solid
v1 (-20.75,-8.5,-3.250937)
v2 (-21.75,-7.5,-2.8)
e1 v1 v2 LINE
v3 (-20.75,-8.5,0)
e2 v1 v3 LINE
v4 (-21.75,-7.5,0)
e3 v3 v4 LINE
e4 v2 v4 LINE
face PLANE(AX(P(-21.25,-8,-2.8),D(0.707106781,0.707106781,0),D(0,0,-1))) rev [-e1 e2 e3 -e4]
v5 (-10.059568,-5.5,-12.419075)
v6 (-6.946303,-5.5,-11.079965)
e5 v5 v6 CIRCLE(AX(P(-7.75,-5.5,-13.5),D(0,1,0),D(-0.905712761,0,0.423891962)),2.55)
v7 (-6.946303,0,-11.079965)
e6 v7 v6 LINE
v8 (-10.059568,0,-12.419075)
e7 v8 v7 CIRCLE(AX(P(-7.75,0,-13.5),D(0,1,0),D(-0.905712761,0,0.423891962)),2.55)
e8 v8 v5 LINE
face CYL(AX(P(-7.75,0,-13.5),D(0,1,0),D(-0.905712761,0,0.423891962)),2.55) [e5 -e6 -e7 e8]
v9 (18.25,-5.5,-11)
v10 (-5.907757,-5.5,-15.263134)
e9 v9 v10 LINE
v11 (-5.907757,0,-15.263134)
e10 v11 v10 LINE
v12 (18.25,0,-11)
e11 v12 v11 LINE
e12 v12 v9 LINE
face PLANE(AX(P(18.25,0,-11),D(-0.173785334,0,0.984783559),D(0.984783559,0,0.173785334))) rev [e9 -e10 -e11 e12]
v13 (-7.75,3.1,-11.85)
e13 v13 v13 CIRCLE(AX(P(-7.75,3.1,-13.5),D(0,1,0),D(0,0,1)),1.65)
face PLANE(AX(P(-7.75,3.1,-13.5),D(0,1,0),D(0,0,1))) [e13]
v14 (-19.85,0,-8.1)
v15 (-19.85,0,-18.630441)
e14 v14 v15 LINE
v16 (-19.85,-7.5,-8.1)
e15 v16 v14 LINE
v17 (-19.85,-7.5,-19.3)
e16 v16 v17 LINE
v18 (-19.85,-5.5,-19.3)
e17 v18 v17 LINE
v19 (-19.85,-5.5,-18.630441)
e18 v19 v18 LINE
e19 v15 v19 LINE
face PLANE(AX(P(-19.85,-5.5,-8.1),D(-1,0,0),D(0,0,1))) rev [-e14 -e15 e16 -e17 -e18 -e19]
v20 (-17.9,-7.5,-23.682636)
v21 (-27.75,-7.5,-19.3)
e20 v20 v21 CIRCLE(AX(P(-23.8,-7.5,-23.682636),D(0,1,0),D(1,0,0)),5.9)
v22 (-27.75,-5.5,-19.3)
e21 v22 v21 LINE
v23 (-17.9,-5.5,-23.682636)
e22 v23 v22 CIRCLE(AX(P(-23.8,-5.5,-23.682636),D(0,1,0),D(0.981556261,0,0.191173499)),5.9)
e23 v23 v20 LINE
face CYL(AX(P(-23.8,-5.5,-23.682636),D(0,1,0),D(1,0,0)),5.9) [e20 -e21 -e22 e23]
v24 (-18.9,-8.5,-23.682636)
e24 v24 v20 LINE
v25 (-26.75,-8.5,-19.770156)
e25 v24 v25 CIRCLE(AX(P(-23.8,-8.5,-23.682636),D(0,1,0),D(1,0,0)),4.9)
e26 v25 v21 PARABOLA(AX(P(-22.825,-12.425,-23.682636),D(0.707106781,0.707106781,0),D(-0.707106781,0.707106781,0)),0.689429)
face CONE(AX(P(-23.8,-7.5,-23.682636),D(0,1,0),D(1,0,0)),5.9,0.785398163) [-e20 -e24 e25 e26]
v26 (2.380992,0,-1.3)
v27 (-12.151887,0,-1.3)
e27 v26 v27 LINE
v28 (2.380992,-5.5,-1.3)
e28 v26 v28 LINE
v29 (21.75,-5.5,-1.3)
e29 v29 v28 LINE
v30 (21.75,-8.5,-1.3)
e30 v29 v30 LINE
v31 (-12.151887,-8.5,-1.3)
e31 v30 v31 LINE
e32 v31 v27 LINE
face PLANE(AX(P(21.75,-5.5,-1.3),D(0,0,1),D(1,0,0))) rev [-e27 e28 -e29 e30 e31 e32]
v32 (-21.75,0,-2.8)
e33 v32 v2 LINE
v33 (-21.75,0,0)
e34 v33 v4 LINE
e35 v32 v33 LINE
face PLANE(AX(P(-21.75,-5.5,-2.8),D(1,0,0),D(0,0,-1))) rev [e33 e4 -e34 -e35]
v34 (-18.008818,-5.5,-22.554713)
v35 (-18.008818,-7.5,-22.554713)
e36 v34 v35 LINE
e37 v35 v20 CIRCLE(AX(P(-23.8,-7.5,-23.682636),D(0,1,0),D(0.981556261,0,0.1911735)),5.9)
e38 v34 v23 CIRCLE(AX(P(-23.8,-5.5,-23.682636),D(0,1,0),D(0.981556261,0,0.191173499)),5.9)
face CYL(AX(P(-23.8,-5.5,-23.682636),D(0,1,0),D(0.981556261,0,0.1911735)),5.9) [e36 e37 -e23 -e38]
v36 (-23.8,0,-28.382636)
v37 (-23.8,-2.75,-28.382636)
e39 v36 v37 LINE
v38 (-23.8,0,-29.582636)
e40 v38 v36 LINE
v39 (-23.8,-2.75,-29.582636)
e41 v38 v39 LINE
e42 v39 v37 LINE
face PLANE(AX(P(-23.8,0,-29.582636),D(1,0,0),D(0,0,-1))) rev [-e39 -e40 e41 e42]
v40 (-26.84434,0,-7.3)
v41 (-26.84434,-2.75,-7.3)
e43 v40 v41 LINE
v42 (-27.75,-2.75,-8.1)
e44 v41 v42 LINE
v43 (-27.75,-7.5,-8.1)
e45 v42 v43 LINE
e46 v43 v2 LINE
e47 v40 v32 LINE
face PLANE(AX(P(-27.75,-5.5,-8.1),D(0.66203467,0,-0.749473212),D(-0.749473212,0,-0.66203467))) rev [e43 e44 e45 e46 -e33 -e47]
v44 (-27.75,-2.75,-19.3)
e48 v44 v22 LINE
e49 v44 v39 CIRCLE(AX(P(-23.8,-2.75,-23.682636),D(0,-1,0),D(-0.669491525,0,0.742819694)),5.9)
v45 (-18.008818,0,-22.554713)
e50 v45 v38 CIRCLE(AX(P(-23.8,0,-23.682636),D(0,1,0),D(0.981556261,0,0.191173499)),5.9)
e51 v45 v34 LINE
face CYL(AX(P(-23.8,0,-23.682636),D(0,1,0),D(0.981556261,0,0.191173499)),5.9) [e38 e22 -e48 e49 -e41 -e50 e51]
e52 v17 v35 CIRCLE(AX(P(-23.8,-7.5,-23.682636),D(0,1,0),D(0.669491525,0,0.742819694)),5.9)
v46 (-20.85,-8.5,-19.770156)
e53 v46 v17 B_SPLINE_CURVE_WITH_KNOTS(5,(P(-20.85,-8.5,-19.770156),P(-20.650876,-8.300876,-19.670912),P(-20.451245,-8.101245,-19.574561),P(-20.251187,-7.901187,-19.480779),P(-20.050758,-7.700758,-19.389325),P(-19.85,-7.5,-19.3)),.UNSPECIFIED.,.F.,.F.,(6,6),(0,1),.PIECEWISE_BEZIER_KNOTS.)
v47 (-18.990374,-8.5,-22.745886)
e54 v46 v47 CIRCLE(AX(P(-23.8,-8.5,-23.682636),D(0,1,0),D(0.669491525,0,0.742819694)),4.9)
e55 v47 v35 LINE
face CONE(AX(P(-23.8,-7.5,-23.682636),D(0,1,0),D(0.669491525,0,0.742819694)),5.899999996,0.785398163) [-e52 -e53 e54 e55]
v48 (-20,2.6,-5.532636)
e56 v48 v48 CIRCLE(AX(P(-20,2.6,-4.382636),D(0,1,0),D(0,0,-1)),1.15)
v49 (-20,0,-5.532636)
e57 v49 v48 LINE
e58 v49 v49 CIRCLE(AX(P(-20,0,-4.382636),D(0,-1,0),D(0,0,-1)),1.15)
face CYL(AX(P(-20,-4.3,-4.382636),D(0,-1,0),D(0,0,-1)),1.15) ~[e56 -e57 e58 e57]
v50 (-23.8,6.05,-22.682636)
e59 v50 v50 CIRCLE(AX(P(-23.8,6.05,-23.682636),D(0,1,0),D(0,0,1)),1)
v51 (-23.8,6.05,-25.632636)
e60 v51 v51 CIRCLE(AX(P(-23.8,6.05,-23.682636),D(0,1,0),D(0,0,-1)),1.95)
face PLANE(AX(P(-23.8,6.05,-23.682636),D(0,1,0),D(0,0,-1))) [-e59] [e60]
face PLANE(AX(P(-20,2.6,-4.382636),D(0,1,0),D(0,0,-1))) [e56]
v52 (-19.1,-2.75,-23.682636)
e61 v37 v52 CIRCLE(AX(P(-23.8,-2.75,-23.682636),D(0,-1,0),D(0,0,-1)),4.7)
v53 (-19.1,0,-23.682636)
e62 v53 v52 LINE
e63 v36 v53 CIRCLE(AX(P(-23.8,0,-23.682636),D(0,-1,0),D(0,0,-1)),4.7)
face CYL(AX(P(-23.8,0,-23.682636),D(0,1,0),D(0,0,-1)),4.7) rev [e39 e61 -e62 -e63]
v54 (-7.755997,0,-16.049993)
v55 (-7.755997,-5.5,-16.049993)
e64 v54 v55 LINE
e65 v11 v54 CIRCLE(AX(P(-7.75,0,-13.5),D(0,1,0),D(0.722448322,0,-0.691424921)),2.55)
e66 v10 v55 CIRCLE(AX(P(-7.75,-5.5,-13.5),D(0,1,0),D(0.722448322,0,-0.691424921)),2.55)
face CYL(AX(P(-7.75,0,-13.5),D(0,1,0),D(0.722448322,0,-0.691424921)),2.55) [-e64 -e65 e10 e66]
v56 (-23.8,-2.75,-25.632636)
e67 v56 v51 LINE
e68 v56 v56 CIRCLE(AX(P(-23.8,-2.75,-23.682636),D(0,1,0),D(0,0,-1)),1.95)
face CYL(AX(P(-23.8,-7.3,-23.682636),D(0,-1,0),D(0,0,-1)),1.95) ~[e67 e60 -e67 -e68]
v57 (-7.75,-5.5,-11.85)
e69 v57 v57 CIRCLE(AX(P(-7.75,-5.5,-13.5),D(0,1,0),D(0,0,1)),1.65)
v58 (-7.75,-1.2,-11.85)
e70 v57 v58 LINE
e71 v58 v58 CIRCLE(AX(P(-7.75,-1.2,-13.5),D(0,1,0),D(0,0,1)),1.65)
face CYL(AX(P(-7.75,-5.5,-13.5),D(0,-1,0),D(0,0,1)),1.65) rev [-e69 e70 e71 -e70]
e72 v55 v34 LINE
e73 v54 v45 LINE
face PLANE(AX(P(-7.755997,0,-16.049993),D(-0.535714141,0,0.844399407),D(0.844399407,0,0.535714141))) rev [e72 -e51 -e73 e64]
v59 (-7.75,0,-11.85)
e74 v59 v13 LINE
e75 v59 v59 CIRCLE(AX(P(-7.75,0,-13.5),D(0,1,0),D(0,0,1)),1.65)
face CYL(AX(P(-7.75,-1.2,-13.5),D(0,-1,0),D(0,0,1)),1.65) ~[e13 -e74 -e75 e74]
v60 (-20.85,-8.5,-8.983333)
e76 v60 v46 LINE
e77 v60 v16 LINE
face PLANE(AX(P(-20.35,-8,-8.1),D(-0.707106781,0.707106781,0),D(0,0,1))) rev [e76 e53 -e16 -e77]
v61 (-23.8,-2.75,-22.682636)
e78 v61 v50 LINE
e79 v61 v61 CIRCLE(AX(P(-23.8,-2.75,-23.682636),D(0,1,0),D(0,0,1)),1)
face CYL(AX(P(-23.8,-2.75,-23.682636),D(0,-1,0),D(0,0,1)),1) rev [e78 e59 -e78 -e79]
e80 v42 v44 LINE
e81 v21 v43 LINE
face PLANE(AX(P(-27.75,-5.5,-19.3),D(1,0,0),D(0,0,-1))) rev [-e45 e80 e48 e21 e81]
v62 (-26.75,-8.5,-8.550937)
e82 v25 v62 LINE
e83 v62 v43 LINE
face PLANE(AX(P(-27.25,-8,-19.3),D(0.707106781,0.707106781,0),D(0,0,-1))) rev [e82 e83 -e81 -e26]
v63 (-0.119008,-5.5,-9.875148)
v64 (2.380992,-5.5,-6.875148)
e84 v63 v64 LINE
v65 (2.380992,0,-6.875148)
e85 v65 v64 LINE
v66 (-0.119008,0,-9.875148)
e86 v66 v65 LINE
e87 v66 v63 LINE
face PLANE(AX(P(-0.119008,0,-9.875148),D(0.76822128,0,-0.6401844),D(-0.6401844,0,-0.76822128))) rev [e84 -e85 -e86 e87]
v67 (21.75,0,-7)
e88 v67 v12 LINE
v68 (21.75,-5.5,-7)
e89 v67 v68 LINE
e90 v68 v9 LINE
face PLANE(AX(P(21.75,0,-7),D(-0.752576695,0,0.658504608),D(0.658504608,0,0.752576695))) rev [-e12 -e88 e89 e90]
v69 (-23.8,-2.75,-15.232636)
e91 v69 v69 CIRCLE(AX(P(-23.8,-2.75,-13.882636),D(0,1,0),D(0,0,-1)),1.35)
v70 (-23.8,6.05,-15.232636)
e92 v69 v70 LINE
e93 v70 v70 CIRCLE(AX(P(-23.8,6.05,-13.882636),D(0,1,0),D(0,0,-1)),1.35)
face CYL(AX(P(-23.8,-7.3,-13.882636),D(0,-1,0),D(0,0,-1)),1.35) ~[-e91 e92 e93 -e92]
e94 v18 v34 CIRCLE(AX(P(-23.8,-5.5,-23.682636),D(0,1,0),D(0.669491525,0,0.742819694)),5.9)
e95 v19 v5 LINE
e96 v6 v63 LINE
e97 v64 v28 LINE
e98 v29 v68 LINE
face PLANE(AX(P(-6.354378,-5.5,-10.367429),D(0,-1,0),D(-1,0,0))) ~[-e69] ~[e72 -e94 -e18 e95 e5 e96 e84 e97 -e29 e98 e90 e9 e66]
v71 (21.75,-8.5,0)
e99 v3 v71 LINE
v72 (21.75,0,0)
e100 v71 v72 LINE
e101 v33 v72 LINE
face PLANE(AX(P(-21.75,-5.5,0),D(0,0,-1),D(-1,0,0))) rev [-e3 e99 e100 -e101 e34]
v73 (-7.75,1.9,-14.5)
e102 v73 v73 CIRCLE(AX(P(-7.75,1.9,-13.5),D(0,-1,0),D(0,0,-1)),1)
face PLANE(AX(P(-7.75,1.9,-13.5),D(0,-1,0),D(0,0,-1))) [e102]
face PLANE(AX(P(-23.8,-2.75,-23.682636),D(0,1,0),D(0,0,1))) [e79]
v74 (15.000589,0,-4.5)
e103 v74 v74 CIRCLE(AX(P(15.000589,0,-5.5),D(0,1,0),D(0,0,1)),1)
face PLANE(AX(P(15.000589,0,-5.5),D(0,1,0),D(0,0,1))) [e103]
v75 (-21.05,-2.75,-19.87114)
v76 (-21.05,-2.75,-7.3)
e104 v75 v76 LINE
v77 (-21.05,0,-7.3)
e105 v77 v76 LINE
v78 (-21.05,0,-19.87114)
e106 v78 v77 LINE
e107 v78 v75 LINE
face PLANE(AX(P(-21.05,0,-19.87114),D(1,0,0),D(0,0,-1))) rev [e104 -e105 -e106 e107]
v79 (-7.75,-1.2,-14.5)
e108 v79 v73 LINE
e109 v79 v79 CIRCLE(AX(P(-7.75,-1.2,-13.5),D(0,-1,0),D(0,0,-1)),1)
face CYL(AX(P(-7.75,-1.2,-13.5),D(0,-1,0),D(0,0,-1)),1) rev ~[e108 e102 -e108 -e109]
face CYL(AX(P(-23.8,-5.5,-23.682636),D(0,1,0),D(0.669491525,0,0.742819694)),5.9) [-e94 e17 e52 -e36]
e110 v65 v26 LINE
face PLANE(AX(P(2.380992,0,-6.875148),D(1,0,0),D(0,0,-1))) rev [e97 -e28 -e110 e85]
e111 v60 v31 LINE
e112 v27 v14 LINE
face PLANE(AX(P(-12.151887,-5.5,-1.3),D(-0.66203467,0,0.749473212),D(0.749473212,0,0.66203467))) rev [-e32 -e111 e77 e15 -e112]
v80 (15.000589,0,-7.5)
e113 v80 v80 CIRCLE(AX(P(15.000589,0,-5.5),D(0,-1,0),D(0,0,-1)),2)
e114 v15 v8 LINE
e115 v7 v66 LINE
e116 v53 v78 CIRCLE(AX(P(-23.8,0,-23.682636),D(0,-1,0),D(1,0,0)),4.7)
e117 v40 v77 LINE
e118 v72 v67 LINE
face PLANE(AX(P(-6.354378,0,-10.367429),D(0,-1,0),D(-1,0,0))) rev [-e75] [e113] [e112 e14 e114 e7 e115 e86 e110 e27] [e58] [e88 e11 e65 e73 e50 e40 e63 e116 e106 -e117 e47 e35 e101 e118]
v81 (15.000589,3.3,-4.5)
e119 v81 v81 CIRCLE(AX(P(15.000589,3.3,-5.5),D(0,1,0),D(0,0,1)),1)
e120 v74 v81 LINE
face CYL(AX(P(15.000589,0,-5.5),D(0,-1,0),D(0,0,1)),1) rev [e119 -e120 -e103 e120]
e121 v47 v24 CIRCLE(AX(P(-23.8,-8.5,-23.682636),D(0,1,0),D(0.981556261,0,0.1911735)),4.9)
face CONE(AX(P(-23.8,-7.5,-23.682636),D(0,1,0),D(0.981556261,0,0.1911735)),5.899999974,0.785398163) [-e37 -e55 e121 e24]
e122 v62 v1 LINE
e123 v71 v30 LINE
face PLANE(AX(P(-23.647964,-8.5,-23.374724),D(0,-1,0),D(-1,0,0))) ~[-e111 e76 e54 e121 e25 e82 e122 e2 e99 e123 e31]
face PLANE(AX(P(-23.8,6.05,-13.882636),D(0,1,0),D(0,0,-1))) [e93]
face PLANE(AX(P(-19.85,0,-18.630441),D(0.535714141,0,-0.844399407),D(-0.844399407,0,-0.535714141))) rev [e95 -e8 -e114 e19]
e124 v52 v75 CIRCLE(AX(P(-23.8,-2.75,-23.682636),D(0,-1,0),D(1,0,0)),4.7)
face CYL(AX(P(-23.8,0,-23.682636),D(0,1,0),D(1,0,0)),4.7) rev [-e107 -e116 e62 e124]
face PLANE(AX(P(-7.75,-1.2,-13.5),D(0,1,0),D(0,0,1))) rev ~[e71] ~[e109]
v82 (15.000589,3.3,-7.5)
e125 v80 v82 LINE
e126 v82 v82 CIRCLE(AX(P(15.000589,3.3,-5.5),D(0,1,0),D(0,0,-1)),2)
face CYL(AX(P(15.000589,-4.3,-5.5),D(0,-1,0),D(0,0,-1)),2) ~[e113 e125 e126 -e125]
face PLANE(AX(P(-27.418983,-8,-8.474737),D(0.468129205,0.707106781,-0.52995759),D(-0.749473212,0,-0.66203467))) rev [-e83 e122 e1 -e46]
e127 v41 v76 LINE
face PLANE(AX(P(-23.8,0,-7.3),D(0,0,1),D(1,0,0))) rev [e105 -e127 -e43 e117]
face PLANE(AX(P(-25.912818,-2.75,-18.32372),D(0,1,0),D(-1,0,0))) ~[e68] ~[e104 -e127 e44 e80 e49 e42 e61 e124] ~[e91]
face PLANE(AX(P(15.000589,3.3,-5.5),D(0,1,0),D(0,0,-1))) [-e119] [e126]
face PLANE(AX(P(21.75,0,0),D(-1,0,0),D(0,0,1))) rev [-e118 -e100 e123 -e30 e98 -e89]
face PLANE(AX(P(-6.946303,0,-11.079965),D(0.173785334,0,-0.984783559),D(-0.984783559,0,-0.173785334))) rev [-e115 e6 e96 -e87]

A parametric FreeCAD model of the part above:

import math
import FreeCAD as App
import Part
import Sketcher
from FreeCAD import Vector


def edges_at(feature, points):
    """Names of the edges that pass closest to the given points."""
    edges = feature.Shape.Edges
    near = lambda p: min(range(len(edges)), key=lambda i: edges[i].distToShape(Part.Vertex(*p))[0])
    return sorted({f"Edge{near(p) + 1}" for p in points})

doc = App.newDocument("Part")
body = doc.addObject("PartDesign::Body", "Body")

# Sketch on XZ plane
sketch1 = body.newObject("Sketcher::SketchObject", "Sketch")
sketch1.AttachmentSupport = (doc.getObject("XZ_Plane"), [""])
sketch1.MapMode = "FlatFace"
sketch1.addGeometry(Part.LineSegment(Vector(-7.755997, -16.049993, 0), Vector(-18.008818, -22.554713, 0)), False)
sketch1.addGeometry(Part.ArcOfCircle(Part.Circle(Vector(-23.8, -23.682636, 0), Vector(0, 0, 1), 5.9), math.radians(132.027833), math.radians(371.021276)), False)
sketch1.addGeometry(Part.LineSegment(Vector(-27.75, -19.3, 0), Vector(-27.75, -8.1, 0)), False)
sketch1.addGeometry(Part.LineSegment(Vector(-27.75, -8.1, 0), Vector(-21.75, -2.8, 0)), False)
sketch1.addGeometry(Part.LineSegment(Vector(-21.75, -2.8, 0), Vector(-21.75, 0, 0)), False)
sketch1.addGeometry(Part.LineSegment(Vector(-21.75, 0, 0), Vector(21.75, 0, 0)), False)
sketch1.addGeometry(Part.LineSegment(Vector(21.75, 0, 0), Vector(21.75, -7, 0)), False)
sketch1.addGeometry(Part.LineSegment(Vector(21.75, -7, 0), Vector(18.25, -11, 0)), False)
sketch1.addGeometry(Part.LineSegment(Vector(18.25, -11, 0), Vector(-5.907757, -15.263134, 0)), False)
sketch1.addGeometry(Part.ArcOfCircle(Part.Circle(Vector(-7.75, -13.5, 0), Vector(0, 0, 1), 2.55), math.radians(-90.13474), math.radians(-43.74301)), False)
sketch1.addGeometry(Part.LineSegment(Vector(-19.85, -8.1, 0), Vector(-19.85, -18.630441, 0)), False)
sketch1.addGeometry(Part.LineSegment(Vector(-19.85, -18.630441, 0), Vector(-10.059568, -12.419075, 0)), False)
sketch1.addGeometry(Part.ArcOfCircle(Part.Circle(Vector(-7.75, -13.5, 0), Vector(0, 0, 1), 2.55), math.radians(71.6286), math.radians(154.919452)), False)
sketch1.addGeometry(Part.LineSegment(Vector(-6.946303, -11.079965, 0), Vector(-0.119008, -9.875148, 0)), False)
sketch1.addGeometry(Part.LineSegment(Vector(-0.119008, -9.875148, 0), Vector(2.380992, -6.875148, 0)), False)
sketch1.addGeometry(Part.LineSegment(Vector(2.380992, -6.875148, 0), Vector(2.380992, -1.3, 0)), False)
sketch1.addGeometry(Part.LineSegment(Vector(2.380992, -1.3, 0), Vector(-12.151887, -1.3, 0)), False)
sketch1.addGeometry(Part.LineSegment(Vector(-12.151887, -1.3, 0), Vector(-19.85, -8.1, 0)), False)
sketch1.addConstraint(Sketcher.Constraint("Coincident", 0, 2, 1, 2))
sketch1.addConstraint(Sketcher.Constraint("Coincident", 1, 1, 2, 1))
sketch1.addConstraint(Sketcher.Constraint("Coincident", 2, 2, 3, 1))
sketch1.addConstraint(Sketcher.Constraint("Coincident", 3, 2, 4, 1))
sketch1.addConstraint(Sketcher.Constraint("Coincident", 4, 2, 5, 1))
sketch1.addConstraint(Sketcher.Constraint("Coincident", 5, 2, 6, 1))
sketch1.addConstraint(Sketcher.Constraint("Coincident", 6, 2, 7, 1))
sketch1.addConstraint(Sketcher.Constraint("Coincident", 7, 2, 8, 1))
sketch1.addConstraint(Sketcher.Constraint("Coincident", 8, 2, 9, 2))
sketch1.addConstraint(Sketcher.Constraint("Coincident", 9, 1, 0, 1))
sketch1.addConstraint(Sketcher.Constraint("Coincident", 10, 2, 11, 1))
sketch1.addConstraint(Sketcher.Constraint("Coincident", 11, 2, 12, 2))
sketch1.addConstraint(Sketcher.Constraint("Coincident", 12, 1, 13, 1))
sketch1.addConstraint(Sketcher.Constraint("Coincident", 13, 2, 14, 1))
sketch1.addConstraint(Sketcher.Constraint("Coincident", 14, 2, 15, 1))
sketch1.addConstraint(Sketcher.Constraint("Coincident", 15, 2, 16, 1))
sketch1.addConstraint(Sketcher.Constraint("Coincident", 16, 2, 17, 1))
sketch1.addConstraint(Sketcher.Constraint("Coincident", 17, 2, 10, 1))
sketch1.addConstraint(Sketcher.Constraint("Vertical", 2))
sketch1.addConstraint(Sketcher.Constraint("Vertical", 4))
sketch1.addConstraint(Sketcher.Constraint("Horizontal", 5))
sketch1.addConstraint(Sketcher.Constraint("Vertical", 6))
sketch1.addConstraint(Sketcher.Constraint("Vertical", 10))
sketch1.addConstraint(Sketcher.Constraint("Vertical", 15))
sketch1.addConstraint(Sketcher.Constraint("Horizontal", 16))
sketch1.addConstraint(Sketcher.Constraint("Coincident", 12, 3, 9, 3))
sketch1.addConstraint(Sketcher.Constraint("Equal", 9, 12))
sketch1.addConstraint(Sketcher.Constraint("Symmetric", 4, 2, 5, 2, -1, 1))
sketch1.addConstraint(Sketcher.Constraint("Parallel", 0, 11))
sketch1.addConstraint(Sketcher.Constraint("Parallel", 8, 13))
sketch1.addConstraint(Sketcher.Constraint("Parallel", 3, 17))
sketch1.addConstraint(Sketcher.Constraint("Horizontal", 2, 2, 17, 2))
sketch1.addConstraint(Sketcher.Constraint("Radius", 1, 5.9))
sketch1.addConstraint(Sketcher.Constraint("DistanceY", 6, 2, 6, 1, 7.0))
sketch1.addConstraint(Sketcher.Constraint("Radius", 9, 2.55))
sketch1.addConstraint(Sketcher.Constraint("DistanceX", 5, 1, 5, 2, 43.5))
sketch1.addConstraint(Sketcher.Constraint("DistanceY", 2, 1, 2, 2, 11.2))
sketch1.addConstraint(Sketcher.Constraint("DistanceY", 4, 1, 4, 2, 2.8))
sketch1.addConstraint(Sketcher.Constraint("DistanceY", 7, 2, -1, 1, 11.0))
sketch1.addConstraint(Sketcher.Constraint("DistanceX", 1, 1, 9, 3, 20.0))
sketch1.addConstraint(Sketcher.Constraint("DistanceX", 2, 2, 3, 2, 6.0))
sketch1.addConstraint(Sketcher.Constraint("DistanceX", 12, 3, 7, 2, 26.0))
sketch1.addConstraint(Sketcher.Constraint("DistanceY", 13, 2, 14, 2, 3.0))
sketch1.addConstraint(Sketcher.Constraint("DistanceX", 1, 3, -1, 1, 23.8))
sketch1.addConstraint(Sketcher.Constraint("DistanceY", 9, 3, -1, 1, 13.5))
sketch1.addConstraint(Sketcher.Constraint("DistanceY", 1, 1, -1, 1, 19.3))
sketch1.addConstraint(Sketcher.Constraint("DistanceY", 15, 2, -1, 1, 1.3))
sketch1.addConstraint(Sketcher.Constraint("DistanceX", 1, 1, 10, 2, 7.9))
sketch1.addConstraint(Sketcher.Constraint("DistanceX", 13, 2, 14, 2, 2.5))
sketch1.addConstraint(Sketcher.Constraint("DistanceX", 16, 2, 16, 1, 14.532878))
sketch1.addConstraint(Sketcher.Constraint("DistanceY", 10, 2, 10, 1, 10.530441))
sketch1.addConstraint(Sketcher.Constraint("DistanceY", 15, 1, 15, 2, 5.575148))
sketch1.addConstraint(Sketcher.Constraint("Distance", 8, 24.531032))
sketch1.addConstraint(Sketcher.Constraint("Distance", 11, 11.594552))
sketch1.addConstraint(Sketcher.Constraint("DistanceX", 0, 2, -1, 1, 18.008818))
pad1 = body.newObject("PartDesign::Pad", "Pad")
pad1.Profile = sketch1
pad1.Length = 5.5
pad1.Reversed = True

# Sketch on XZ plane
sketch2 = body.newObject("Sketcher::SketchObject", "Sketch001")
sketch2.AttachmentSupport = (doc.getObject("XZ_Plane"), [""])
sketch2.MapMode = "FlatFace"
sketch2.AttachmentOffset = App.Placement(Vector(0, 0, -5.5), App.Rotation())
sketch2.addGeometry(Part.Circle(Vector(-7.75, -13.5, 0), Vector(0, 0, 1), 1.65), False)
sketch2.addConstraint(Sketcher.Constraint("Diameter", 0, 3.3))
sketch2.addConstraint(Sketcher.Constraint("DistanceY", 0, 3, -1, 1, 13.5))
sketch2.addConstraint(Sketcher.Constraint("DistanceX", 0, 3, -1, 1, 7.75))
pocket1 = body.newObject("PartDesign::Pocket", "Pocket")
pocket1.Profile = sketch2
pocket1.Length = 5.5
pocket1.Reversed = True

# Sketch on XZ plane
sketch3 = body.newObject("Sketcher::SketchObject", "Sketch002")
sketch3.AttachmentSupport = (doc.getObject("XZ_Plane"), [""])
sketch3.MapMode = "FlatFace"
sketch3.AttachmentOffset = App.Placement(Vector(0, 0, -5.5), App.Rotation())
sketch3.addGeometry(Part.ArcOfCircle(Part.Circle(Vector(-23.8, -23.682636, 0), Vector(0, 0, 1), 5.9), math.radians(11.021276), math.radians(47.972167)), False)
sketch3.addGeometry(Part.ArcOfCircle(Part.Circle(Vector(-23.8, -23.682636, 0), Vector(0, 0, 1), 5.9), math.radians(0), math.radians(11.021276)), False)
sketch3.addGeometry(Part.ArcOfCircle(Part.Circle(Vector(-23.8, -23.682636, 0), Vector(0, 0, 1), 5.9), math.radians(132.027833), math.radians(360)), False)
sketch3.addGeometry(Part.LineSegment(Vector(-27.75, -19.3, 0), Vector(-27.75, -8.1, 0)), False)
sketch3.addGeometry(Part.LineSegment(Vector(-27.75, -8.1, 0), Vector(-21.75, -2.8, 0)), False)
sketch3.addGeometry(Part.LineSegment(Vector(-21.75, -2.8, 0), Vector(-21.75, 0, 0)), False)
sketch3.addGeometry(Part.LineSegment(Vector(-21.75, 0, 0), Vector(21.75, 0, 0)), False)
sketch3.addGeometry(Part.LineSegment(Vector(21.75, 0, 0), Vector(21.75, -1.3, 0)), False)
sketch3.addGeometry(Part.LineSegment(Vector(21.75, -1.3, 0), Vector(-12.151887, -1.3, 0)), False)
sketch3.addGeometry(Part.LineSegment(Vector(-12.151887, -1.3, 0), Vector(-19.85, -8.1, 0)), False)
sketch3.addGeometry(Part.LineSegment(Vector(-19.85, -8.1, 0), Vector(-19.85, -19.3, 0)), False)
sketch3.addConstraint(Sketcher.Constraint("Tangent", 0, 1, 1, 2))
sketch3.addConstraint(Sketcher.Constraint("Tangent", 1, 1, 2, 2))
sketch3.addConstraint(Sketcher.Constraint("Coincident", 2, 1, 3, 1))
sketch3.addConstraint(Sketcher.Constraint("Coincident", 3, 2, 4, 1))
sketch3.addConstraint(Sketcher.Constraint("Coincident", 4, 2, 5, 1))
sketch3.addConstraint(Sketcher.Constraint("Coincident", 5, 2, 6, 1))
sketch3.addConstraint(Sketcher.Constraint("Coincident", 6, 2, 7, 1))
sketch3.addConstraint(Sketcher.Constraint("Coincident", 7, 2, 8, 1))
sketch3.addConstraint(Sketcher.Constraint("Coincident", 8, 2, 9, 1))
sketch3.addConstraint(Sketcher.Constraint("Coincident", 9, 2, 10, 1))
sketch3.addConstraint(Sketcher.Constraint("Coincident", 10, 2, 0, 2))
sketch3.addConstraint(Sketcher.Constraint("Vertical", 3))
sketch3.addConstraint(Sketcher.Constraint("Vertical", 5))
sketch3.addConstraint(Sketcher.Constraint("Horizontal", 6))
sketch3.addConstraint(Sketcher.Constraint("Vertical", 7))
sketch3.addConstraint(Sketcher.Constraint("Horizontal", 8))
sketch3.addConstraint(Sketcher.Constraint("Vertical", 10))
sketch3.addConstraint(Sketcher.Constraint("Coincident", 2, 3, 0, 3))
sketch3.addConstraint(Sketcher.Constraint("Symmetric", 5, 2, 6, 2, -1, 1))
sketch3.addConstraint(Sketcher.Constraint("Parallel", 4, 9))
sketch3.addConstraint(Sketcher.Constraint("Horizontal", 2, 3, 1, 1))
sketch3.addConstraint(Sketcher.Constraint("Horizontal", 3, 2, 9, 2))
sketch3.addConstraint(Sketcher.Constraint("Horizontal", 2, 1, 10, 2))
sketch3.addConstraint(Sketcher.Constraint("Radius", 0, 5.9))
sketch3.addConstraint(Sketcher.Constraint("DistanceX", 6, 1, 6, 2, 43.5))
sketch3.addConstraint(Sketcher.Constraint("DistanceY", 3, 1, 3, 2, 11.2))
sketch3.addConstraint(Sketcher.Constraint("DistanceY", 5, 1, 5, 2, 2.8))
sketch3.addConstraint(Sketcher.Constraint("DistanceY", 7, 2, 7, 1, 1.3))
sketch3.addConstraint(Sketcher.Constraint("DistanceX", 3, 2, 4, 2, 6.0))
sketch3.addConstraint(Sketcher.Constraint("DistanceX", 0, 3, -1, 1, 23.8))
sketch3.addConstraint(Sketcher.Constraint("DistanceY", 2, 1, -1, 1, 19.3))
sketch3.addConstraint(Sketcher.Constraint("DistanceX", 0, 1, -1, 1, 18.008818))
pad2 = body.newObject("PartDesign::Pad", "Pad001")
pad2.Profile = sketch3
pad2.Length = 3
pad2.Reversed = True

# Sketch on XZ plane
sketch4 = body.newObject("Sketcher::SketchObject", "Sketch003")
sketch4.AttachmentSupport = (doc.getObject("XZ_Plane"), [""])
sketch4.MapMode = "FlatFace"
sketch4.addGeometry(Part.ArcOfCircle(Part.Circle(Vector(-23.8, -23.682636, 0), Vector(0, 0, 1), 5.9), math.radians(132.027833), math.radians(270)), False)
sketch4.addGeometry(Part.LineSegment(Vector(-23.8, -29.582636, 0), Vector(-23.8, -7.3, 0)), False)
sketch4.addGeometry(Part.LineSegment(Vector(-23.8, -7.3, 0), Vector(-26.84434, -7.3, 0)), False)
sketch4.addGeometry(Part.LineSegment(Vector(-26.84434, -7.3, 0), Vector(-27.75, -8.1, 0)), False)
sketch4.addGeometry(Part.LineSegment(Vector(-27.75, -8.1, 0), Vector(-27.75, -19.3, 0)), False)
sketch4.addConstraint(Sketcher.Constraint("Coincident", 0, 2, 1, 1))
sketch4.addConstraint(Sketcher.Constraint("Coincident", 1, 2, 2, 1))
sketch4.addConstraint(Sketcher.Constraint("Coincident", 2, 2, 3, 1))
sketch4.addConstraint(Sketcher.Constraint("Coincident", 3, 2, 4, 1))
sketch4.addConstraint(Sketcher.Constraint("Coincident", 4, 2, 0, 1))
sketch4.addConstraint(Sketcher.Constraint("Vertical", 1))
sketch4.addConstraint(Sketcher.Constraint("Horizontal", 2))
sketch4.addConstraint(Sketcher.Constraint("Vertical", 4))
sketch4.addConstraint(Sketcher.Constraint("Radius", 0, 5.9))
sketch4.addConstraint(Sketcher.Constraint("DistanceY", 4, 2, 4, 1, 11.2))
sketch4.addConstraint(Sketcher.Constraint("DistanceY", 4, 2, 2, 2, 12.0))
sketch4.addConstraint(Sketcher.Constraint("DistanceX", 0, 3, -1, 1, 23.8))
sketch4.addConstraint(Sketcher.Constraint("DistanceX", 0, 2, -1, 1, 23.8))
sketch4.addConstraint(Sketcher.Constraint("DistanceY", 1, 2, -1, 1, 7.3))
sketch4.addConstraint(Sketcher.Constraint("DistanceX", 3, 2, -1, 1, 27.75))
sketch4.addConstraint(Sketcher.Constraint("DistanceX", 2, 2, 2, 1, 3.04434))
pocket2 = body.newObject("PartDesign::Pocket", "Pocket001")
pocket2.Profile = sketch4
pocket2.Length = 2.75

# Sketch on XZ plane
sketch5 = body.newObject("Sketcher::SketchObject", "Sketch004")
sketch5.AttachmentSupport = (doc.getObject("XZ_Plane"), [""])
sketch5.MapMode = "FlatFace"
sketch5.addGeometry(Part.Circle(Vector(-23.8, -23.682636, 0), Vector(0, 0, 1), 1.95), False)
sketch5.addGeometry(Part.Circle(Vector(-23.8, -13.882636, 0), Vector(0, 0, 1), 1.35), False)
sketch5.addGeometry(Part.Circle(Vector(-20, -4.382636, 0), Vector(0, 0, 1), 1.15), False)
sketch5.addGeometry(Part.Circle(Vector(15.000589, -5.5, 0), Vector(0, 0, 1), 2), False)
sketch5.addConstraint(Sketcher.Constraint("Vertical", 0, 3, 1, 3))
sketch5.addConstraint(Sketcher.Constraint("Diameter", 3, 4.0))
sketch5.addConstraint(Sketcher.Constraint("Diameter", 0, 3.9))
sketch5.addConstraint(Sketcher.Constraint("Diameter", 1, 2.7))
sketch5.addConstraint(Sketcher.Constraint("Diameter", 2, 2.3))
sketch5.addConstraint(Sketcher.Constraint("DistanceX", 2, 3, -1, 1, 20.0))
sketch5.addConstraint(Sketcher.Constraint("DistanceX", 0, 3, -1, 1, 23.8))
sketch5.addConstraint(Sketcher.Constraint("DistanceY", 3, 3, -1, 1, 5.5))
sketch5.addConstraint(Sketcher.Constraint("DistanceY", 0, 3, 1, 3, 9.8))
sketch5.addConstraint(Sketcher.Constraint("DistanceY", 1, 3, 2, 3, 9.5))
sketch5.addConstraint(Sketcher.Constraint("DistanceX", -1, 1, 3, 3, 15.000589))
sketch5.addConstraint(Sketcher.Constraint("DistanceY", 0, 3, -1, 1, 23.682636))
pocket3 = body.newObject("PartDesign::Pocket", "Pocket002")
pocket3.Profile = sketch5
pocket3.Length = 4.3

# Sketch on XZ plane
sketch6 = body.newObject("Sketcher::SketchObject", "Sketch005")
sketch6.AttachmentSupport = (doc.getObject("XZ_Plane"), [""])
sketch6.MapMode = "FlatFace"
sketch6.AttachmentOffset = App.Placement(Vector(0, 0, -4.3), App.Rotation())
sketch6.addGeometry(Part.Circle(Vector(-23.8, -23.682636, 0), Vector(0, 0, 1), 1.95), False)
sketch6.addGeometry(Part.Circle(Vector(-23.8, -13.882636, 0), Vector(0, 0, 1), 1.35), False)
sketch6.addConstraint(Sketcher.Constraint("Vertical", 0, 3, 1, 3))
sketch6.addConstraint(Sketcher.Constraint("Diameter", 0, 3.9))
sketch6.addConstraint(Sketcher.Constraint("Diameter", 1, 2.7))
sketch6.addConstraint(Sketcher.Constraint("DistanceX", 0, 3, -1, 1, 23.8))
sketch6.addConstraint(Sketcher.Constraint("DistanceY", 0, 3, 1, 3, 9.8))
sketch6.addConstraint(Sketcher.Constraint("DistanceY", 0, 3, -1, 1, 23.682636))
pocket4 = body.newObject("PartDesign::Pocket", "Pocket003")
pocket4.Profile = sketch6
pocket4.Length = 3
doc.recompute()

chamfer = body.newObject("PartDesign::Chamfer", "Chamfer")
chamfer.Base = (pocket4, edges_at(pocket4, [
    (-26.198, 8.5, -29.073),
    (-27.75, 8.5, -13.7),
    (-24.75, 8.5, -5.45),
    (-21.75, 8.5, -1.4),
    (-19.85, 8.5, -13.7),
]))
chamfer.Size = 1

# Sketch on XZ plane
sketch7 = body.newObject("Sketcher::SketchObject", "Sketch006")
sketch7.AttachmentSupport = (doc.getObject("XZ_Plane"), [""])
sketch7.MapMode = "FlatFace"
sketch7.addGeometry(Part.LineSegment(Vector(-21.05, -7.3, 0), Vector(-23.8, -7.3, 0)), False)
sketch7.addGeometry(Part.LineSegment(Vector(-23.8, -7.3, 0), Vector(-23.8, -12.532636, 0)), False)
sketch7.addGeometry(Part.ArcOfCircle(Part.Circle(Vector(-23.8, -13.882636, 0), Vector(0, 0, 1), 1.35), math.radians(-90), math.radians(90)), False)
sketch7.addGeometry(Part.LineSegment(Vector(-23.8, -15.232636, 0), Vector(-23.8, -18.982636, 0)), False)
sketch7.addGeometry(Part.ArcOfCircle(Part.Circle(Vector(-23.8, -23.682636, 0), Vector(0, 0, 1), 4.7), math.radians(90), math.radians(270)), False)
sketch7.addGeometry(Part.ArcOfCircle(Part.Circle(Vector(-23.8, -23.682636, 0), Vector(0, 0, 1), 4.7), math.radians(-90), math.radians(0)), False)
sketch7.addGeometry(Part.ArcOfCircle(Part.Circle(Vector(-23.8, -23.682636, 0), Vector(0, 0, 1), 4.7), math.radians(0), math.radians(54.189494)), False)
sketch7.addGeometry(Part.LineSegment(Vector(-21.05, -19.87114, 0), Vector(-21.05, -7.3, 0)), False)
sketch7.addConstraint(Sketcher.Constraint("Coincident", 0, 2, 1, 1))
sketch7.addConstraint(Sketcher.Constraint("Coincident", 1, 2, 2, 2))
sketch7.addConstraint(Sketcher.Constraint("Coincident", 2, 1, 3, 1))
sketch7.addConstraint(Sketcher.Constraint("Coincident", 3, 2, 4, 1))
sketch7.addConstraint(Sketcher.Constraint("Tangent", 4, 2, 5, 1))
sketch7.addConstraint(Sketcher.Constraint("Tangent", 5, 2, 6, 1))
sketch7.addConstraint(Sketcher.Constraint("Coincident", 6, 2, 7, 1))
sketch7.addConstraint(Sketcher.Constraint("Coincident", 7, 2, 0, 1))
sketch7.addConstraint(Sketcher.Constraint("Horizontal", 0))
sketch7.addConstraint(Sketcher.Constraint("Vertical", 1))
sketch7.addConstraint(Sketcher.Constraint("Vertical", 3))
sketch7.addConstraint(Sketcher.Constraint("Vertical", 7))
sketch7.addConstraint(Sketcher.Constraint("Coincident", 6, 3, 4, 3))
sketch7.addConstraint(Sketcher.Constraint("Horizontal", 6, 3, 5, 2))
sketch7.addConstraint(Sketcher.Constraint("Vertical", 2, 3, 4, 3))
sketch7.addConstraint(Sketcher.Constraint("Vertical", 6, 3, 0, 2))
sketch7.addConstraint(Sketcher.Constraint("Vertical", 1, 2, 2, 1))
sketch7.addConstraint(Sketcher.Constraint("Vertical", 3, 2, 4, 2))
sketch7.addConstraint(Sketcher.Constraint("Radius", 4, 4.7))
sketch7.addConstraint(Sketcher.Constraint("Radius", 2, 1.35))
sketch7.addConstraint(Sketcher.Constraint("DistanceX", 0, 2, 0, 1, 2.75))
sketch7.addConstraint(Sketcher.Constraint("DistanceY", 3, 2, 3, 1, 3.75))
sketch7.addConstraint(Sketcher.Constraint("DistanceX", 2, 3, -1, 1, 23.8))
sketch7.addConstraint(Sketcher.Constraint("DistanceY", 0, 2, -1, 1, 7.3))
sketch7.addConstraint(Sketcher.Constraint("DistanceY", 7, 1, 7, 2, 12.57114))
pocket5 = body.newObject("PartDesign::Pocket", "Pocket004")
pocket5.Profile = sketch7
pocket5.Length = 2.75
body2 = doc.addObject("PartDesign::Body", "Body001")
doc.recompute()

mirroring = doc.addObject("Part::Mirroring", "Mirroring")
mirroring.Source = body
mirroring.Base = Vector(0, 0, 0)
mirroring.Normal = Vector(0, 1, 0)
body2.BaseFeature = mirroring
doc.recompute()

# Sketch on XZ plane
sketch8 = body2.newObject("Sketcher::SketchObject", "Sketch007")
sketch8.AttachmentSupport = (doc.getObject("XZ_Plane001"), [""])
sketch8.MapMode = "FlatFace"
sketch8.AttachmentOffset = App.Placement(Vector(0, 0, 7.3), App.Rotation())
sketch8.addGeometry(Part.Circle(Vector(-23.8, -23.682636, 0), Vector(0, 0, 1), 1.95), False)
sketch8.addConstraint(Sketcher.Constraint("Diameter", 0, 3.9))
sketch8.addConstraint(Sketcher.Constraint("DistanceX", 0, 3, -1, 1, 23.8))
sketch8.addConstraint(Sketcher.Constraint("DistanceY", 0, 3, -1, 1, 23.682636))
pad3 = body2.newObject("PartDesign::Pad", "Pad002")
pad3.Profile = sketch8
pad3.Length = 13.35
pad3.Reversed = True

# Sketch on XZ plane
sketch9 = body2.newObject("Sketcher::SketchObject", "Sketch008")
sketch9.AttachmentSupport = (doc.getObject("XZ_Plane001"), [""])
sketch9.MapMode = "FlatFace"
sketch9.AttachmentOffset = App.Placement(Vector(0, 0, 2.75), App.Rotation())
sketch9.addGeometry(Part.Circle(Vector(-23.8, -23.682636, 0), Vector(0, 0, 1), 1), False)
sketch9.addConstraint(Sketcher.Constraint("Diameter", 0, 2.0))
sketch9.addConstraint(Sketcher.Constraint("DistanceX", 0, 3, -1, 1, 23.8))
sketch9.addConstraint(Sketcher.Constraint("DistanceY", 0, 3, -1, 1, 23.682636))
pocket6 = body2.newObject("PartDesign::Pocket", "Pocket005")
pocket6.Profile = sketch9
pocket6.Length = 8.8

# Sketch on XZ plane
sketch10 = body2.newObject("Sketcher::SketchObject", "Sketch009")
sketch10.AttachmentSupport = (doc.getObject("XZ_Plane001"), [""])
sketch10.MapMode = "FlatFace"
sketch10.AttachmentOffset = App.Placement(Vector(0, 0, 7.3), App.Rotation())
sketch10.addGeometry(Part.Circle(Vector(-23.8, -13.882636, 0), Vector(0, 0, 1), 1.35), False)
sketch10.addConstraint(Sketcher.Constraint("Diameter", 0, 2.7))
sketch10.addConstraint(Sketcher.Constraint("DistanceX", 0, 3, -1, 1, 23.8))
sketch10.addConstraint(Sketcher.Constraint("DistanceY", 0, 3, -1, 1, 13.882636))
pad4 = body2.newObject("PartDesign::Pad", "Pad003")
pad4.Profile = sketch10
pad4.Length = 13.35
pad4.Reversed = True

# Sketch on XZ plane
sketch11 = body2.newObject("Sketcher::SketchObject", "Sketch010")
sketch11.AttachmentSupport = (doc.getObject("XZ_Plane001"), [""])
sketch11.MapMode = "FlatFace"
sketch11.AttachmentOffset = App.Placement(Vector(0, 0, 4.3), App.Rotation())
sketch11.addGeometry(Part.Circle(Vector(-20, -4.382636, 0), Vector(0, 0, 1), 1.15), False)
sketch11.addConstraint(Sketcher.Constraint("Diameter", 0, 2.3))
sketch11.addConstraint(Sketcher.Constraint("DistanceX", 0, 3, -1, 1, 20.0))
sketch11.addConstraint(Sketcher.Constraint("DistanceY", 0, 3, -1, 1, 4.382636))
pad5 = body2.newObject("PartDesign::Pad", "Pad004")
pad5.Profile = sketch11
pad5.Length = 6.9
pad5.Reversed = True

# Sketch on XZ plane
sketch12 = body2.newObject("Sketcher::SketchObject", "Sketch011")
sketch12.AttachmentSupport = (doc.getObject("XZ_Plane001"), [""])
sketch12.MapMode = "FlatFace"
sketch12.AttachmentOffset = App.Placement(Vector(0, 0, 4.3), App.Rotation())
sketch12.addGeometry(Part.Circle(Vector(15.000589, -5.5, 0), Vector(0, 0, 1), 2), False)
sketch12.addConstraint(Sketcher.Constraint("Diameter", 0, 4.0))
sketch12.addConstraint(Sketcher.Constraint("DistanceY", 0, 3, -1, 1, 5.5))
sketch12.addConstraint(Sketcher.Constraint("DistanceX", -1, 1, 0, 3, 15.000589))
pad6 = body2.newObject("PartDesign::Pad", "Pad005")
pad6.Profile = sketch12
pad6.Length = 7.6
pad6.Reversed = True

# Sketch on XZ plane
sketch13 = body2.newObject("Sketcher::SketchObject", "Sketch012")
sketch13.AttachmentSupport = (doc.getObject("XZ_Plane001"), [""])
sketch13.MapMode = "FlatFace"
sketch13.addGeometry(Part.Circle(Vector(15.000589, -5.5, 0), Vector(0, 0, 1), 1), False)
sketch13.addConstraint(Sketcher.Constraint("Diameter", 0, 2.0))
sketch13.addConstraint(Sketcher.Constraint("DistanceY", 0, 3, -1, 1, 5.5))
sketch13.addConstraint(Sketcher.Constraint("DistanceX", -1, 1, 0, 3, 15.000589))
pocket7 = body2.newObject("PartDesign::Pocket", "Pocket006")
pocket7.Profile = sketch13
pocket7.Length = 3.3

# Sketch on XZ plane
sketch14 = body2.newObject("Sketcher::SketchObject", "Sketch013")
sketch14.AttachmentSupport = (doc.getObject("XZ_Plane001"), [""])
sketch14.MapMode = "FlatFace"
sketch14.addGeometry(Part.Circle(Vector(-7.75, -13.5, 0), Vector(0, 0, 1), 1.65), False)
sketch14.addConstraint(Sketcher.Constraint("Diameter", 0, 3.3))
sketch14.addConstraint(Sketcher.Constraint("DistanceY", 0, 3, -1, 1, 13.5))
sketch14.addConstraint(Sketcher.Constraint("DistanceX", 0, 3, -1, 1, 7.75))
pad7 = body2.newObject("PartDesign::Pad", "Pad006")
pad7.Profile = sketch14
pad7.Type = "TwoLengths"
pad7.Length = 3.1
pad7.Length2 = 1.2
pad7.Reversed = True

# Sketch on XZ plane
sketch15 = body2.newObject("Sketcher::SketchObject", "Sketch014")
sketch15.AttachmentSupport = (doc.getObject("XZ_Plane001"), [""])
sketch15.MapMode = "FlatFace"
sketch15.AttachmentOffset = App.Placement(Vector(0, 0, 1.2), App.Rotation())
sketch15.addGeometry(Part.Circle(Vector(-7.75, -13.5, 0), Vector(0, 0, 1), 1), False)
sketch15.addConstraint(Sketcher.Constraint("Diameter", 0, 2.0))
sketch15.addConstraint(Sketcher.Constraint("DistanceY", 0, 3, -1, 1, 13.5))
sketch15.addConstraint(Sketcher.Constraint("DistanceX", 0, 3, -1, 1, 7.75))
pocket8 = body2.newObject("PartDesign::Pocket", "Pocket007")
pocket8.Profile = sketch15
pocket8.Length = 3.1
body.Visibility = False
mirroring.Visibility = False

doc.recompute()
